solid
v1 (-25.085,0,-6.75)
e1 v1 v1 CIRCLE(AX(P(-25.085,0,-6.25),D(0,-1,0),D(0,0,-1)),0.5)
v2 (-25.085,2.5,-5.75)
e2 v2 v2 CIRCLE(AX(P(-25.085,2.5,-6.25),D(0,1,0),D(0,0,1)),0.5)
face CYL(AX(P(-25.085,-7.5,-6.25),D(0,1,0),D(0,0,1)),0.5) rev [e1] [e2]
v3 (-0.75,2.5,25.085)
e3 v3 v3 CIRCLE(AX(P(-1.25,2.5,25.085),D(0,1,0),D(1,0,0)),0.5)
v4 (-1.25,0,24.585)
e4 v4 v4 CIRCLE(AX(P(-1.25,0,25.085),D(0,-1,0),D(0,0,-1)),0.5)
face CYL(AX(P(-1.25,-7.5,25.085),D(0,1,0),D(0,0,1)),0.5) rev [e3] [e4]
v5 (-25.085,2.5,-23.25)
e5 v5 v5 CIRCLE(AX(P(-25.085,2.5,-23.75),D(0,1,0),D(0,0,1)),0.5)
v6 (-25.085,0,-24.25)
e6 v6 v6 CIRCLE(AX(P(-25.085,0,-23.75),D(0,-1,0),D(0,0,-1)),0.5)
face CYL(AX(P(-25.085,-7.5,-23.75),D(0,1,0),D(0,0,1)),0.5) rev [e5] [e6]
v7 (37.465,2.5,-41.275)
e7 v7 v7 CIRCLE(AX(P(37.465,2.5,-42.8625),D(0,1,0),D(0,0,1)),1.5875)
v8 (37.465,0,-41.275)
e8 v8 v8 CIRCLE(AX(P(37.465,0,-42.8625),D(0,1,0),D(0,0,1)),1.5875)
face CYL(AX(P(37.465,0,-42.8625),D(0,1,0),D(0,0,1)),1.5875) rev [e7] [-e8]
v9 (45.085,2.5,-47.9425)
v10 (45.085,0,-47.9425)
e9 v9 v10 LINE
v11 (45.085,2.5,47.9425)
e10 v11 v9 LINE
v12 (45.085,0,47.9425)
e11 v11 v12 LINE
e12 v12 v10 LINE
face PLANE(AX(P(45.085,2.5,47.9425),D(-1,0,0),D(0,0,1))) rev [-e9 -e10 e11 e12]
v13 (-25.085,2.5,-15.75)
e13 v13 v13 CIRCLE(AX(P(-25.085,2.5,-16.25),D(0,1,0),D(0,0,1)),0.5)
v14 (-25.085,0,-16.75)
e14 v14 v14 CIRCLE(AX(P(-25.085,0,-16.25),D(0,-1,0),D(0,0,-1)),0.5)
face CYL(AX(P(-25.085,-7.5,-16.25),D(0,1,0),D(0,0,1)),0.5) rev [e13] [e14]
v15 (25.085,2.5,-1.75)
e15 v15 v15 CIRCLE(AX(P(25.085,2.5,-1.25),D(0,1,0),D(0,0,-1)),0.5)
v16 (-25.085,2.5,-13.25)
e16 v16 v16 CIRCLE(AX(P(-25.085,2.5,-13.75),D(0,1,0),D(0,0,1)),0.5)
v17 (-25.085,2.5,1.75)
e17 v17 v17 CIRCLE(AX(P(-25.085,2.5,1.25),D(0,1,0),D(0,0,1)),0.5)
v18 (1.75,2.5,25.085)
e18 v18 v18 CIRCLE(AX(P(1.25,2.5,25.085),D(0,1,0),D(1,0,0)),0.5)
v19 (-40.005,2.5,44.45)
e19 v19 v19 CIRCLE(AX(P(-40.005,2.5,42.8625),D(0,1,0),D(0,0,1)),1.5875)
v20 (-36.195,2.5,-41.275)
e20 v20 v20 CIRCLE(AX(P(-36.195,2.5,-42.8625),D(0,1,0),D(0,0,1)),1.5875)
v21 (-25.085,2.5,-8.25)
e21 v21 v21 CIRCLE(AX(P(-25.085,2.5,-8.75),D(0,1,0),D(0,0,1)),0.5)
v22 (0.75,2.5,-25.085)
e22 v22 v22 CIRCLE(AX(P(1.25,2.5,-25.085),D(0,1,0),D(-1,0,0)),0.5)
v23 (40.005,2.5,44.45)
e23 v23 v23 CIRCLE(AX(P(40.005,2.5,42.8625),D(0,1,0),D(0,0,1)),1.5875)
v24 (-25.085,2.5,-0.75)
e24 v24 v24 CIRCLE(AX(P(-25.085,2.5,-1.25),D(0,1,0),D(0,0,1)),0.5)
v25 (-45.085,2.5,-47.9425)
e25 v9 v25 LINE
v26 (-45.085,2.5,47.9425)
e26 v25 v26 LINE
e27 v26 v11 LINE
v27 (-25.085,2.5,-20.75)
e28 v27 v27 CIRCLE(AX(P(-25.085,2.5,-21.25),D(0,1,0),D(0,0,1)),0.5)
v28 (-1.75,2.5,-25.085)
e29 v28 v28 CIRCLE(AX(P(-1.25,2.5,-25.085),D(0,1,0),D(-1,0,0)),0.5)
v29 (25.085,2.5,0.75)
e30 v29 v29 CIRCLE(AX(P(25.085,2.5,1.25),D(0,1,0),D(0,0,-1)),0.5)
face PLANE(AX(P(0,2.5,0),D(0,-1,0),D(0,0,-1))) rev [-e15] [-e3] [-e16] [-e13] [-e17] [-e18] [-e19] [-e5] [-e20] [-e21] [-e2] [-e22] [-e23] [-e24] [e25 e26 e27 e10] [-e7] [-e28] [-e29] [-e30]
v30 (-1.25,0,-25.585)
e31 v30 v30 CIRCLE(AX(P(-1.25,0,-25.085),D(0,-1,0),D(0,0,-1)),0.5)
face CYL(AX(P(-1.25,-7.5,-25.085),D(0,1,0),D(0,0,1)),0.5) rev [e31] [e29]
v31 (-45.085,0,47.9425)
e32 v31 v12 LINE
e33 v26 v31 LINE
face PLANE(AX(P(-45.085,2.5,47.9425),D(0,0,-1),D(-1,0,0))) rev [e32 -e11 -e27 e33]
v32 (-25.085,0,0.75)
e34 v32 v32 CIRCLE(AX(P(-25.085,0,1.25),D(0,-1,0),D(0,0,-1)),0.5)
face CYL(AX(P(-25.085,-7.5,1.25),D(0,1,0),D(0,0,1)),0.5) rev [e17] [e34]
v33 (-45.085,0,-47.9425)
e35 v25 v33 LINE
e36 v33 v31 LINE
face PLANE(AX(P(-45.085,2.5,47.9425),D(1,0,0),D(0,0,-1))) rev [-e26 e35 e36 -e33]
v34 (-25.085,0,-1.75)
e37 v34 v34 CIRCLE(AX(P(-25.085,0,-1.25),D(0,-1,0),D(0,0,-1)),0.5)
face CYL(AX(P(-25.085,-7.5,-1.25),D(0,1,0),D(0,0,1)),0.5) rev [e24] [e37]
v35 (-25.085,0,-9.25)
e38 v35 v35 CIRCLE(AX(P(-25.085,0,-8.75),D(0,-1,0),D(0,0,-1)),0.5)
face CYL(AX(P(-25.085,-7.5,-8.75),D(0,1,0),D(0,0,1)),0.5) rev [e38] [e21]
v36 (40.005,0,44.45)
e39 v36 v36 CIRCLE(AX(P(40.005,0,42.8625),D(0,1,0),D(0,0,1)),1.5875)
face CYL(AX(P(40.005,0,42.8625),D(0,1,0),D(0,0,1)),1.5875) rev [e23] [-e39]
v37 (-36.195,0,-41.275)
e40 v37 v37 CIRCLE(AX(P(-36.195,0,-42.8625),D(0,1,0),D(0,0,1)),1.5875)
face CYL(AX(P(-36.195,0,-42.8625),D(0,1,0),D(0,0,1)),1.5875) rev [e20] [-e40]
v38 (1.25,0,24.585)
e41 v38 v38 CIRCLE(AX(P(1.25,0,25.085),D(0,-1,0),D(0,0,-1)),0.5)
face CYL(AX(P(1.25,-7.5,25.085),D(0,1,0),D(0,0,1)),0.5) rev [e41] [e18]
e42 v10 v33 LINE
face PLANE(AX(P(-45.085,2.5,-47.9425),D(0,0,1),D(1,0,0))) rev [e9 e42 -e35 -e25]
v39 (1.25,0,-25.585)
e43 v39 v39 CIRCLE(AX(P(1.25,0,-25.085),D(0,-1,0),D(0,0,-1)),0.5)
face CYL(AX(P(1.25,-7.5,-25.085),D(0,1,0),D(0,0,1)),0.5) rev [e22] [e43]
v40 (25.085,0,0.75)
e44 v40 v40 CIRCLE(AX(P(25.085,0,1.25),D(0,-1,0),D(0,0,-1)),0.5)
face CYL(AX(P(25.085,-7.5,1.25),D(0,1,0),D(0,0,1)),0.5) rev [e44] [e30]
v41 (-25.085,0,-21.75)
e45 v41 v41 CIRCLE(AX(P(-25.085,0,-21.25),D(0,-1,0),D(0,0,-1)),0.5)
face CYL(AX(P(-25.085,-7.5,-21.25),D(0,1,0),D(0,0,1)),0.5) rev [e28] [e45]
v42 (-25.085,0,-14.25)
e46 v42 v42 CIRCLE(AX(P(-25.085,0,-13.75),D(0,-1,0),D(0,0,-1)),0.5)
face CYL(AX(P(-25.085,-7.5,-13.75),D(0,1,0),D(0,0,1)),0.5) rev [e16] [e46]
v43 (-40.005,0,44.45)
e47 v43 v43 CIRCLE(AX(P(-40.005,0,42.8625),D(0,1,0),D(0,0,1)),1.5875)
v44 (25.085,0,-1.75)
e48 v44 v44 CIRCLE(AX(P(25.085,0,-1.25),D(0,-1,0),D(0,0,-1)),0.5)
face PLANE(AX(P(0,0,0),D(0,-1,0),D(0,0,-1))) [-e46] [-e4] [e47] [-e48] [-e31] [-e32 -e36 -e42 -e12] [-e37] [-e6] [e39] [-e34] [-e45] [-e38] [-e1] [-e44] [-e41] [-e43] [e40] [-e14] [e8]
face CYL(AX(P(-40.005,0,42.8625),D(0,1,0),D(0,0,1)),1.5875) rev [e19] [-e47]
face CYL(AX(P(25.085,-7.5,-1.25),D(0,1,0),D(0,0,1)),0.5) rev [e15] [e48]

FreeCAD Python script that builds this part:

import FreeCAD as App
import Part
import Sketcher
from FreeCAD import Vector
Q = App.Units.Quantity


def add_polygon(sketch, points):
    """Adds a closed chain of lines whose ends are joined by coincident constraints."""
    first, n = sketch.GeometryCount, len(points)
    for a, b in zip(points, points[1:] + points[:1]):
        sketch.addGeometry(Part.LineSegment(App.Vector(*a, 0), App.Vector(*b, 0)), False)
    for i in range(n):
        sketch.addConstraint(Sketcher.Constraint("Coincident", first + i, 2, first + (i + 1) % n, 1))

doc = App.newDocument("Part")
params = doc.addObject("Spreadsheet::Sheet", "Params")
for row, (alias, value) in enumerate([
    ("sketch1_width", "90.17 mm"),
    ("pad1_length", "2.5 mm"),
    ("pocket1_length", "2.5 mm"),
    ("sketch3_diameter", "1 mm"),
    ("pocket2_length", "10 mm"),
    ("linearpattern_pitch", "7.5 mm"),
], start=1):
    params.set(f"A{row}", alias)
    params.set(f"B{row}", "=" + value)
    params.setAlias(f"B{row}", alias)

body = doc.addObject("PartDesign::Body", "Body")

# Sketch on XZ plane
sketch1 = doc.addObject("Sketcher::SketchObject", "Sketch")
body.addObject(sketch1)
sketch1.AttachmentSupport = (doc.XZ_Plane, [""])
sketch1.MapMode = "FlatFace"
add_polygon(sketch1, [(-45.085, -47.9425), (-45.085, 47.9425), (45.085, 47.9425), (45.085, -47.9425)])  # lines 0-3
sketch1.addConstraint([
    Sketcher.Constraint("Vertical", 0),
    Sketcher.Constraint("Horizontal", 1),
    Sketcher.Constraint("Vertical", 2),
    Sketcher.Constraint("Horizontal", 3),
    Sketcher.Constraint("Symmetric", 0, 2, 2, 2, -1, 1),
    Sketcher.Constraint("DistanceX", 1, 1, 1, 2, Q("90.17 mm")),
    Sketcher.Constraint("DistanceY", 0, 1, 0, 2, Q("95.885 mm")),
])
sketch1.setExpression("Constraints[9]", "Params.sketch1_width")
pad1 = doc.addObject("PartDesign::Pad", "Pad")
body.addObject(pad1)
pad1.Profile = sketch1
pad1.setExpression("Length", "Params.pad1_length")
pad1.Reversed = True

# Sketch on XZ plane
sketch2 = doc.addObject("Sketcher::SketchObject", "Sketch001")
body.addObject(sketch2)
sketch2.AttachmentSupport = (doc.XZ_Plane, [""])
sketch2.MapMode = "FlatFace"
sketch2.AttachmentOffset = App.Placement(Vector(0, 0, -2.5), App.Rotation())
sketch2.addGeometry([
    Part.Circle(Vector(-40.005, 42.8625, 0), Vector(0, 0, 1), 1.5875),
    Part.Circle(Vector(-36.195, -42.8625, 0), Vector(0, 0, 1), 1.5875),
    Part.Circle(Vector(37.465, -42.8625, 0), Vector(0, 0, 1), 1.5875),
    Part.Circle(Vector(40.005, 42.8625, 0), Vector(0, 0, 1), 1.5875),
], False)
sketch2.addConstraint([
    Sketcher.Constraint("Equal", 0, 1),
    Sketcher.Constraint("Equal", 1, 2),
    Sketcher.Constraint("Equal", 2, 3),
    Sketcher.Constraint("Symmetric", 0, 3, 3, 3, -2),
    Sketcher.Constraint("Horizontal", 1, 3, 2, 3),
    Sketcher.Constraint("Diameter", 0, Q("3.175 mm")),
    Sketcher.Constraint("DistanceX", 1, 3, 3, 3, Q("76.2 mm")),
    Sketcher.Constraint("DistanceX", 0, 3, 1, 3, Q("3.81 mm")),
    Sketcher.Constraint("DistanceX", 1, 3, 2, 3, Q("73.66 mm")),
    Sketcher.Constraint("DistanceY", 1, 3, 0, 3, Q("85.725 mm")),
    Sketcher.Constraint("DistanceY", -1, 1, 0, 3, Q("42.8625 mm")),
])
pocket1 = doc.addObject("PartDesign::Pocket", "Pocket")
body.addObject(pocket1)
pocket1.Profile = sketch2
pocket1.setExpression("Length", "Params.pocket1_length")
pocket1.Reversed = True

# Sketch on XZ plane
sketch3 = doc.addObject("Sketcher::SketchObject", "Sketch002")
body.addObject(sketch3)
sketch3.AttachmentSupport = (doc.XZ_Plane, [""])
sketch3.MapMode = "FlatFace"
sketch3.AttachmentOffset = App.Placement(Vector(0, 0, -2.5), App.Rotation())
sketch3.addGeometry([
    Part.Circle(Vector(-25.085, -1.25, 0), Vector(0, 0, 1), 0.5),
    Part.Circle(Vector(-25.085, 1.25, 0), Vector(0, 0, 1), 0.5),
], False)
sketch3.addConstraint([
    Sketcher.Constraint("Equal", 0, 1),
    Sketcher.Constraint("Symmetric", 0, 3, 1, 3, -1),
    Sketcher.Constraint("Diameter", 0, Q("1 mm")),
    Sketcher.Constraint("DistanceY", 0, 3, 1, 3, Q("2.5 mm")),
    Sketcher.Constraint("DistanceX", 0, 3, -1, 1, Q("25.085 mm")),
])
sketch3.setExpression("Constraints[2]", "Params.sketch3_diameter")
pocket2 = doc.addObject("PartDesign::Pocket", "Pocket001")
body.addObject(pocket2)
pocket2.Profile = sketch3
pocket2.setExpression("Length", "Params.pocket2_length")
pocket2.Reversed = True
doc.recompute()

polarpattern = doc.addObject("PartDesign::PolarPattern", "PolarPattern")
body.addObject(polarpattern)
polarpattern.Originals = [pocket2]
polarpattern.Axis = (doc.Y_Axis, [""])
polarpattern.Angle = 360
polarpattern.Occurrences = 4
body.Tip = polarpattern
doc.recompute()

linearpattern = doc.addObject("PartDesign::LinearPattern", "LinearPattern")
body.addObject(linearpattern)
linearpattern.Originals = [pocket2]
linearpattern.Direction = (doc.Z_Axis, [""])
linearpattern.Mode = "offset"
linearpattern.setExpression("Offset", "Params.linearpattern_pitch")
linearpattern.Occurrences = 4
linearpattern.Reversed = True
body.Tip = linearpattern

doc.recompute()
